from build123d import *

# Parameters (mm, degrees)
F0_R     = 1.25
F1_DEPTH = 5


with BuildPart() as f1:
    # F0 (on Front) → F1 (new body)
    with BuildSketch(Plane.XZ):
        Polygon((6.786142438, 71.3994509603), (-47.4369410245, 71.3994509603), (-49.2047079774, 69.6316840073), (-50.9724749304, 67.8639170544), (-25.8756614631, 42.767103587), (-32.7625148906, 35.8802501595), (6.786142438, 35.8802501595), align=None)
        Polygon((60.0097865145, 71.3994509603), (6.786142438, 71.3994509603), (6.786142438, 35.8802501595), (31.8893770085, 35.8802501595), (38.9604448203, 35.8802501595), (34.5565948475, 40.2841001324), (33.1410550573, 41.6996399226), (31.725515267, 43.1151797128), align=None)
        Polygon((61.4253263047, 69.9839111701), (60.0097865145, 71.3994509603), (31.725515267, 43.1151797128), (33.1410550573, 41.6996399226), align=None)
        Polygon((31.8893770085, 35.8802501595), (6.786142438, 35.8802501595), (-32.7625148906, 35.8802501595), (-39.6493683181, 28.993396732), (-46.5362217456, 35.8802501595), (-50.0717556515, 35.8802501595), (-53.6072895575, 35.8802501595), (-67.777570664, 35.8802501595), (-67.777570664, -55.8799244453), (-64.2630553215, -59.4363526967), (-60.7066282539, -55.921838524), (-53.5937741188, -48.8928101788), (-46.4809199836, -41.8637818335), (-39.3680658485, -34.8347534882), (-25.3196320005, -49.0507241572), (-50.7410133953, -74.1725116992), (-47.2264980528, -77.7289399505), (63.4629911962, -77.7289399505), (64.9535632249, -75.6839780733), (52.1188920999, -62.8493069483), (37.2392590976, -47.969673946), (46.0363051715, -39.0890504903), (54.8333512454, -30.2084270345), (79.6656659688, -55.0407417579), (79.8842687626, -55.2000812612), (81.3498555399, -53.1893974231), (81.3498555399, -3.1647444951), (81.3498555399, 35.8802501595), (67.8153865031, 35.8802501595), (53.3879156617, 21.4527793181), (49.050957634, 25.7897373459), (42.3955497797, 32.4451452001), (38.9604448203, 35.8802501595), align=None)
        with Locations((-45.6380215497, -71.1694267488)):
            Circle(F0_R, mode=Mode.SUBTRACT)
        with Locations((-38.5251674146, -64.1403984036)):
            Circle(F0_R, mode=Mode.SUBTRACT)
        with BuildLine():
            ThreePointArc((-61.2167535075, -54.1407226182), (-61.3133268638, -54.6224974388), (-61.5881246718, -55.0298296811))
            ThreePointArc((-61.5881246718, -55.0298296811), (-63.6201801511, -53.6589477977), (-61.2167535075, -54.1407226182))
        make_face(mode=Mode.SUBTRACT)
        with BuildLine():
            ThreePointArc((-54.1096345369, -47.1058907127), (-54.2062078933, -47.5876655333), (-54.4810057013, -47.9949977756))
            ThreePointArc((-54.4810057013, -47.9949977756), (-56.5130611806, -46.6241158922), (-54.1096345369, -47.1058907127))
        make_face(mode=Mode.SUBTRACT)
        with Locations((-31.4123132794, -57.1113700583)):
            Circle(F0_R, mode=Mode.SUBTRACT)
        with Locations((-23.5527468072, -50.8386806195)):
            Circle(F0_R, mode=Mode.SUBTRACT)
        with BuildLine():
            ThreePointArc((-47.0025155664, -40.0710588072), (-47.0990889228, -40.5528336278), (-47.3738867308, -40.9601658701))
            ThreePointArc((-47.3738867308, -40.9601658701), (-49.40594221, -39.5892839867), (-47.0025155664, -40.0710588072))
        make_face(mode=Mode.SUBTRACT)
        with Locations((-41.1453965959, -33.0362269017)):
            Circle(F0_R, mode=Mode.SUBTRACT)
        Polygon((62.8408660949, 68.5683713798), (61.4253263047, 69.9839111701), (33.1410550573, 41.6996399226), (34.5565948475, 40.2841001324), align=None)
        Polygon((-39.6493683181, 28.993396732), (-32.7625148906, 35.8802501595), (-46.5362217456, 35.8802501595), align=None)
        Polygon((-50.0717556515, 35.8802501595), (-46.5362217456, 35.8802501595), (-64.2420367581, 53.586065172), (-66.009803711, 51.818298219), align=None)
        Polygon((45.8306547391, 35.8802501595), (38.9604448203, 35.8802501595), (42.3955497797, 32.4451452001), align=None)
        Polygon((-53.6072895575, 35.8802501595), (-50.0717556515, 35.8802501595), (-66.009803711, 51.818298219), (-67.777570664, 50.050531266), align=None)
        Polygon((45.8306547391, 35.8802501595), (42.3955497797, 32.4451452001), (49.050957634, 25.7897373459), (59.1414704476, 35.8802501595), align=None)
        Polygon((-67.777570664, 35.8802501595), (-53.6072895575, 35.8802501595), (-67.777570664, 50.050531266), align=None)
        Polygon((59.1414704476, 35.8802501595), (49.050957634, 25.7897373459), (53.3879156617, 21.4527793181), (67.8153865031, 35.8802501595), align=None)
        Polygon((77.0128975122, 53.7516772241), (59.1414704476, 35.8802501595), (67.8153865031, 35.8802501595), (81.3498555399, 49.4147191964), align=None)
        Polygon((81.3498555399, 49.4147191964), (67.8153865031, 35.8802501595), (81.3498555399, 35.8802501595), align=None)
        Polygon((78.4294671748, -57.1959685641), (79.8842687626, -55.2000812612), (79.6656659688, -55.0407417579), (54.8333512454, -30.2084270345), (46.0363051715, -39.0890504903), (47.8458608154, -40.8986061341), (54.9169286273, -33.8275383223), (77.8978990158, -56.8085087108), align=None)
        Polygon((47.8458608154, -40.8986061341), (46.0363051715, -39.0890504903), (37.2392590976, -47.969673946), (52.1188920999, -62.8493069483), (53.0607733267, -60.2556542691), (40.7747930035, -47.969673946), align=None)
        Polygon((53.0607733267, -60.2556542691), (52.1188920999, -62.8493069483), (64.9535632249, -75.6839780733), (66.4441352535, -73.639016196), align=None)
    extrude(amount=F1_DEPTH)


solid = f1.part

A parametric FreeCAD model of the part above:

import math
import FreeCAD as App
import Part
import Sketcher

V = App.Vector
Q = App.Units.Quantity

doc = App.newDocument("Part")
body = doc.addObject("PartDesign::Body", "Body")

# Sketch on XZ plane
sketch1 = body.newObject("Sketcher::SketchObject", "Sketch")
sketch1.AttachmentSupport = (doc.getObject("XZ_Plane"), [""])
sketch1.MapMode = "FlatFace"
sketch1.addGeometry([
    Part.LineSegment(V(-47.4, 71.4, 0), V(-49.2, 69.6, 0)),  # 0
    Part.LineSegment(V(-49.2, 69.6, 0), V(-51, 67.9, 0)),  # 1
    Part.LineSegment(V(-51, 67.9, 0), V(-25.9, 42.8, 0)),  # 2
    Part.LineSegment(V(-25.9, 42.8, 0), V(-32.8, 35.9, 0)),  # 3
    Part.LineSegment(V(-32.8, 35.9, 0), V(-46.5, 35.9, 0)),  # 4
    Part.LineSegment(V(-46.5, 35.9, 0), V(-64.2, 53.6, 0)),  # 5
    Part.LineSegment(V(-64.2, 53.6, 0), V(-66, 51.8, 0)),  # 6
    Part.LineSegment(V(-66, 51.8, 0), V(-67.8, 50.1, 0)),  # 7
    Part.LineSegment(V(-67.8, 50.1, 0), V(-67.8, -55.9, 0)),  # 8
    Part.LineSegment(V(-67.8, -55.9, 0), V(-64.3, -59.4, 0)),  # 9
    Part.LineSegment(V(-64.3, -59.4, 0), V(-60.7, -55.9, 0)),  # 10
    Part.LineSegment(V(-60.7, -55.9, 0), V(-46.5, -41.9, 0)),  # 11
    Part.LineSegment(V(-46.5, -41.9, 0), V(-39.4, -34.8, 0)),  # 12
    Part.LineSegment(V(-39.4, -34.8, 0), V(-25.3, -49.1, 0)),  # 13
    Part.LineSegment(V(-25.3, -49.1, 0), V(-50.7, -74.2, 0)),  # 14
    Part.LineSegment(V(-50.7, -74.2, 0), V(-47.2, -77.7, 0)),  # 15
    Part.LineSegment(V(-47.2, -77.7, 0), V(63.5, -77.7, 0)),  # 16
    Part.LineSegment(V(63.5, -77.7, 0), V(65, -75.7, 0)),  # 17
    Part.LineSegment(V(65, -75.7, 0), V(66.4, -73.6, 0)),  # 18
    Part.LineSegment(V(66.4, -73.6, 0), V(53.1, -60.3, 0)),  # 19
    Part.LineSegment(V(53.1, -60.3, 0), V(40.8, -48, 0)),  # 20
    Part.LineSegment(V(40.8, -48, 0), V(47.8, -40.9, 0)),  # 21
    Part.LineSegment(V(47.8, -40.9, 0), V(54.9, -33.8, 0)),  # 22
    Part.LineSegment(V(54.9, -33.8, 0), V(77.9, -56.8, 0)),  # 23
    Part.LineSegment(V(77.9, -56.8, 0), V(78.4, -57.2, 0)),  # 24
    Part.LineSegment(V(78.4, -57.2, 0), V(79.9, -55.2, 0)),  # 25
    Part.LineSegment(V(79.9, -55.2, 0), V(81.3, -53.2, 0)),  # 26
    Part.LineSegment(V(81.3, -53.2, 0), V(81.3, 49.4, 0)),  # 27
    Part.LineSegment(V(81.3, 49.4, 0), V(77, 53.8, 0)),  # 28
    Part.LineSegment(V(77, 53.8, 0), V(59.1, 35.9, 0)),  # 29
    Part.LineSegment(V(59.1, 35.9, 0), V(39, 35.9, 0)),  # 30
    Part.LineSegment(V(39, 35.9, 0), V(34.6, 40.3, 0)),  # 31
    Part.LineSegment(V(34.6, 40.3, 0), V(62.8, 68.6, 0)),  # 32
    Part.LineSegment(V(62.8, 68.6, 0), V(61.4, 70, 0)),  # 33
    Part.LineSegment(V(61.4, 70, 0), V(60, 71.4, 0)),  # 34
    Part.LineSegment(V(60, 71.4, 0), V(-47.4, 71.4, 0)),  # 35
    Part.Circle(V(-45.6, -71.2, 0), V(0, 0, 1), 1.2),  # 36
    Part.ArcOfCircle(Part.Circle(V(-62.5, -54.1, 0), V(0, 0, 1), 1.2), math.radians(0), math.radians(315)),  # 37
    Part.ArcOfCircle(Part.Circle(V(-62.5, -54.1, 0), V(0, 0, 1), 1.2), math.radians(-45), math.radians(0)),  # 38
    Part.Circle(V(-38.5, -64.1, 0), V(0, 0, 1), 1.2),  # 39
    Part.Circle(V(-31.4, -57.1, 0), V(0, 0, 1), 1.2),  # 40
    Part.ArcOfCircle(Part.Circle(V(-55.4, -47.1, 0), V(0, 0, 1), 1.2), math.radians(0), math.radians(315)),  # 41
    Part.ArcOfCircle(Part.Circle(V(-55.4, -47.1, 0), V(0, 0, 1), 1.2), math.radians(-45), math.radians(0)),  # 42
    Part.ArcOfCircle(Part.Circle(V(-48.3, -40.1, 0), V(0, 0, 1), 1.2), math.radians(0), math.radians(315)),  # 43
    Part.ArcOfCircle(Part.Circle(V(-48.3, -40.1, 0), V(0, 0, 1), 1.2), math.radians(-45), math.radians(0)),  # 44
    Part.Circle(V(-23.6, -50.8, 0), V(0, 0, 1), 1.2),  # 45
    Part.Circle(V(-41.1, -33, 0), V(0, 0, 1), 1.2),  # 46
], False)
sketch1.addConstraint([
    Sketcher.Constraint("Coincident", 0, 2, 1, 1),
    Sketcher.Constraint("Coincident", 1, 2, 2, 1),
    Sketcher.Constraint("Coincident", 2, 2, 3, 1),
    Sketcher.Constraint("Coincident", 3, 2, 4, 1),
    Sketcher.Constraint("Coincident", 4, 2, 5, 1),
    Sketcher.Constraint("Coincident", 5, 2, 6, 1),
    Sketcher.Constraint("Coincident", 6, 2, 7, 1),
    Sketcher.Constraint("Coincident", 7, 2, 8, 1),
    Sketcher.Constraint("Coincident", 8, 2, 9, 1),
    Sketcher.Constraint("Coincident", 9, 2, 10, 1),
    Sketcher.Constraint("Coincident", 10, 2, 11, 1),
    Sketcher.Constraint("Coincident", 11, 2, 12, 1),
    Sketcher.Constraint("Coincident", 12, 2, 13, 1),
    Sketcher.Constraint("Coincident", 13, 2, 14, 1),
    Sketcher.Constraint("Coincident", 14, 2, 15, 1),
    Sketcher.Constraint("Coincident", 15, 2, 16, 1),
    Sketcher.Constraint("Coincident", 16, 2, 17, 1),
    Sketcher.Constraint("Coincident", 17, 2, 18, 1),
    Sketcher.Constraint("Coincident", 18, 2, 19, 1),
    Sketcher.Constraint("Coincident", 19, 2, 20, 1),
    Sketcher.Constraint("Coincident", 20, 2, 21, 1),
    Sketcher.Constraint("Coincident", 21, 2, 22, 1),
    Sketcher.Constraint("Coincident", 22, 2, 23, 1),
    Sketcher.Constraint("Coincident", 23, 2, 24, 1),
    Sketcher.Constraint("Coincident", 24, 2, 25, 1),
    Sketcher.Constraint("Coincident", 25, 2, 26, 1),
    Sketcher.Constraint("Coincident", 26, 2, 27, 1),
    Sketcher.Constraint("Coincident", 27, 2, 28, 1),
    Sketcher.Constraint("Coincident", 28, 2, 29, 1),
    Sketcher.Constraint("Coincident", 29, 2, 30, 1),
    Sketcher.Constraint("Coincident", 30, 2, 31, 1),
    Sketcher.Constraint("Coincident", 31, 2, 32, 1),
    Sketcher.Constraint("Coincident", 32, 2, 33, 1),
    Sketcher.Constraint("Coincident", 33, 2, 34, 1),
    Sketcher.Constraint("Coincident", 34, 2, 35, 1),
    Sketcher.Constraint("Coincident", 35, 2, 0, 1),
    Sketcher.Constraint("Tangent", 37, 1, 38, 2),
    Sketcher.Constraint("Coincident", 38, 1, 37, 2),
    Sketcher.Constraint("Tangent", 41, 1, 42, 2),
    Sketcher.Constraint("Coincident", 42, 1, 41, 2),
    Sketcher.Constraint("Tangent", 43, 1, 44, 2),
    Sketcher.Constraint("Coincident", 44, 1, 43, 2),
    Sketcher.Constraint("Horizontal", 4),
    Sketcher.Constraint("Vertical", 8),
    Sketcher.Constraint("Horizontal", 16),
    Sketcher.Constraint("Vertical", 27),
    Sketcher.Constraint("Horizontal", 30),
    Sketcher.Constraint("Horizontal", 35),
    Sketcher.Constraint("Equal", 36, 37),
    Sketcher.Constraint("Equal", 38, 39),
    Sketcher.Constraint("Equal", 39, 40),
    Sketcher.Constraint("Equal", 40, 41),
    Sketcher.Constraint("Equal", 42, 43),
    Sketcher.Constraint("Equal", 44, 45),
    Sketcher.Constraint("Equal", 45, 46),
    Sketcher.Constraint("Parallel", 0, 1),
    Sketcher.Constraint("Perpendicular", 1, 2),
    Sketcher.Constraint("Perpendicular", 2, 3),
    Sketcher.Constraint("Perpendicular", 3, 5),
    Sketcher.Constraint("Perpendicular", 5, 6),
    Sketcher.Constraint("Parallel", 6, 7),
    Sketcher.Constraint("Perpendicular", 9, 10),
    Sketcher.Constraint("Parallel", 10, 11),
    Sketcher.Constraint("Parallel", 11, 12),
    Sketcher.Constraint("Perpendicular", 12, 13),
    Sketcher.Constraint("Perpendicular", 13, 14),
    Sketcher.Constraint("Perpendicular", 14, 15),
    Sketcher.Constraint("Parallel", 17, 18),
    Sketcher.Constraint("Perpendicular", 7, 19),
    Sketcher.Constraint("Parallel", 19, 20),
    Sketcher.Constraint("Perpendicular", 20, 21),
    Sketcher.Constraint("Parallel", 21, 22),
    Sketcher.Constraint("Perpendicular", 22, 23),
    Sketcher.Constraint("Perpendicular", 18, 24),
    Sketcher.Constraint("Perpendicular", 24, 25),
    Sketcher.Constraint("Parallel", 25, 26),
    Sketcher.Constraint("Parallel", 23, 28),
    Sketcher.Constraint("Perpendicular", 28, 29),
    Sketcher.Constraint("Perpendicular", 29, 31),
    Sketcher.Constraint("Perpendicular", 31, 32),
    Sketcher.Constraint("Perpendicular", 32, 33),
    Sketcher.Constraint("Parallel", 33, 34),
    Sketcher.Constraint("Horizontal", 4, 2, 29, 2),
    Sketcher.Constraint("Horizontal", 38, 3, 37, 1),
    Sketcher.Constraint("Horizontal", 42, 3, 41, 1),
    Sketcher.Constraint("Horizontal", 44, 3, 43, 1),
    Sketcher.Constraint("Equal", 0, 1),
    Sketcher.Constraint("Equal", 1, 6),
    Sketcher.Constraint("Equal", 6, 7),
    Sketcher.Constraint("Equal", 9, 10),
    Sketcher.Constraint("Equal", 10, 15),
    Sketcher.Constraint("Equal", 17, 18),
    Sketcher.Constraint("Equal", 21, 22),
    Sketcher.Constraint("Equal", 33, 34),
    Sketcher.Constraint("Diameter", 36, 2.5),
    Sketcher.Constraint("Angle", 0, Q("-135 deg")),
    Sketcher.Constraint("Distance", 9, 5.0),
    Sketcher.Constraint("Distance", 21, 10.0),
    Sketcher.Constraint("Distance", 32, 40.0),
    Sketcher.Constraint("Distance", 0, 2.5),
    Sketcher.Constraint("Distance", 23, 32.5),
    Sketcher.Constraint("DistanceX", 43, 3, 3, 2, 15.490001),
    Sketcher.Constraint("Distance", 20, 17.375),
    Sketcher.Constraint("DistanceX", 16, 1, 16, 2, 110.689489),
    Sketcher.Constraint("DistanceY", 39, 3, -1, 1, 64.140398),
    Sketcher.Constraint("DistanceY", -1, 1, 6, 2, 51.818298),
    Sketcher.Constraint("DistanceX", 15, 2, -1, 1, 47.226498),
    Sketcher.Constraint("DistanceX", -1, 1, 23, 2, 77.897899),
    Sketcher.Constraint("DistanceY", -1, 1, 31, 2, 40.2841),
    Sketcher.Constraint("DistanceY", 8, 2, 37, 3, 1.739202),
    Sketcher.Constraint("DistanceX", 9, 2, 37, 3, 1.796302),
    Sketcher.Constraint("DistanceY", 15, 2, 10, 2, 21.807101),
    Sketcher.Constraint("DistanceX", 24, 2, 25, 2, 1.454802),
    Sketcher.Constraint("DistanceY", 25, 2, 27, 2, 104.6148),
    Sketcher.Constraint("DistanceY", 29, 2, 34, 2, 35.519201),
    Sketcher.Constraint("Distance", 3, 9.739482),
    Sketcher.Constraint("Distance", 17, 2.530548),
    Sketcher.Constraint("Distance", 19, 18.926932),
    Sketcher.Constraint("Distance", 24, 0.657792),
    Sketcher.Constraint("Distance", 26, 2.488131),
    Sketcher.Constraint("DistanceX", 4, 2, 4, 1, 13.773707),
    Sketcher.Constraint("DistanceX", 30, 2, 30, 1, 20.181026),
    Sketcher.Constraint("DistanceX", 35, 2, 35, 1, 107.446728),
    Sketcher.Constraint("DistanceY", 8, 2, 8, 1, 105.930456),
    Sketcher.Constraint("DistanceX", 36, 3, -1, 1, 45.638022),
    Sketcher.Constraint("DistanceY", 40, 3, -1, 1, 57.11137),
    Sketcher.Constraint("DistanceY", 41, 3, -1, 1, 47.105891),
    Sketcher.Constraint("DistanceY", 43, 3, -1, 1, 40.071059),
    Sketcher.Constraint("DistanceY", 45, 3, -1, 1, 50.838681),
    Sketcher.Constraint("DistanceX", 2, 2, -1, 1, 25.875661),
    Sketcher.Constraint("DistanceY", -1, 1, 3, 2, 35.88025),
    Sketcher.Constraint("DistanceY", 10, 2, -1, 1, 55.921839),
    Sketcher.Constraint("DistanceX", 11, 2, -1, 1, 46.48092),
    Sketcher.Constraint("DistanceY", 38, 1, -1, 1, 55.02983),
    Sketcher.Constraint("DistanceY", 36, 3, 39, 3, 7.029028),
    Sketcher.Constraint("DistanceX", 36, 3, 40, 3, 14.225708),
    Sketcher.Constraint("DistanceX", 37, 3, 41, 3, 7.107119),
    Sketcher.Constraint("DistanceX", 39, 3, 45, 3, 14.972421),
    Sketcher.Constraint("DistanceX", 43, 3, 45, 3, 24.699769),
    Sketcher.Constraint("DistanceX", 43, 3, 46, 3, 7.107119),
    Sketcher.Constraint("DistanceY", 43, 3, 46, 3, 7.034832),
    Sketcher.Constraint("DistanceX", 46, 3, 12, 2, 1.777331),
    Sketcher.Constraint("DistanceX", 42, 1, 41, 1, 0.371371),
    Sketcher.Constraint("DistanceX", 44, 1, 43, 1, 0.371371),
])
pad1 = body.newObject("PartDesign::Pad", "Pad")
pad1.Profile = sketch1
pad1.Length = 5

doc.recompute()
